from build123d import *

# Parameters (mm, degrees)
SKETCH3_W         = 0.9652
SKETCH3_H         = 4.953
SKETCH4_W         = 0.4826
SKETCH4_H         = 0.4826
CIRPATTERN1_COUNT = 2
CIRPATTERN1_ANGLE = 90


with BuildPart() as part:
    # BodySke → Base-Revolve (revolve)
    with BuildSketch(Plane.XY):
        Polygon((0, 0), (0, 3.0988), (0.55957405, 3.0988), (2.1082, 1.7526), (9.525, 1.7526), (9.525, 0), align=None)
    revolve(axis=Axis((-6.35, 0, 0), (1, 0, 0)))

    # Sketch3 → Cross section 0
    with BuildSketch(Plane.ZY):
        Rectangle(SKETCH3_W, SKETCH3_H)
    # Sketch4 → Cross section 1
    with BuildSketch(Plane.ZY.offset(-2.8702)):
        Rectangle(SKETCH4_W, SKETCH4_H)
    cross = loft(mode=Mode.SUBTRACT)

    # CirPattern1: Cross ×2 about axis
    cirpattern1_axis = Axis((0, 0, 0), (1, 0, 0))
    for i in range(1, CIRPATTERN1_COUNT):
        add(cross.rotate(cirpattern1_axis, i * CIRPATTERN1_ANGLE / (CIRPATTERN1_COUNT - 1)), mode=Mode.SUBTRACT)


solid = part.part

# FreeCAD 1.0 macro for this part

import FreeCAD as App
import Part
import Sketcher

V = App.Vector
Q = App.Units.Quantity

doc = App.newDocument("Part")
body = doc.addObject("PartDesign::Body", "Body")

sketch1 = body.newObject("Sketcher::SketchObject", "Sketch")
sketch1.AttachmentSupport = (doc.getObject("XY_Plane"), [""])
sketch1.MapMode = "FlatFace"
sketch1.addGeometry([
    Part.LineSegment(V(0, 3.1, 0), V(0, 0, 0)),
    Part.LineSegment(V(0, 0, 0), V(9.5, 0, 0)),
    Part.LineSegment(V(9.5, 0, 0), V(9.5, 1.8, 0)),
    Part.LineSegment(V(9.5, 1.8, 0), V(2.1, 1.8, 0)),
    Part.LineSegment(V(2.1, 1.8, 0), V(0.6, 3.1, 0)),
    Part.LineSegment(V(0.6, 3.1, 0), V(0, 3.1, 0)),
], False)
sketch1.addConstraint([
    Sketcher.Constraint("Coincident", 0, 2, 1, 1),
    Sketcher.Constraint("Coincident", 1, 2, 2, 1),
    Sketcher.Constraint("Coincident", 2, 2, 3, 1),
    Sketcher.Constraint("Coincident", 3, 2, 4, 1),
    Sketcher.Constraint("Coincident", 4, 2, 5, 1),
    Sketcher.Constraint("Coincident", 5, 2, 0, 1),
    Sketcher.Constraint("Vertical", 0),
    Sketcher.Constraint("Horizontal", 1),
    Sketcher.Constraint("Vertical", 2),
    Sketcher.Constraint("Horizontal", 3),
    Sketcher.Constraint("Horizontal", 5),
    Sketcher.Constraint("Coincident", 0, 2, -1, 1),
    Sketcher.Constraint("Angle", 4, Q("139 deg")),
    Sketcher.Constraint("DistanceX", 1, 1, 1, 2, Q("0.375 in")),
    Sketcher.Constraint("DistanceX", 3, 2, 3, 1, Q("0.292 in")),
    Sketcher.Constraint("DistanceY", 0, 2, 0, 1, Q("0.122 in")),
    Sketcher.Constraint("DistanceY", 2, 1, 2, 2, Q("0.069 in")),
])
revolution = body.newObject("PartDesign::Revolution", "Revolution")
revolution.Profile = sketch1
revolution.ReferenceAxis = (sketch1, ["H_Axis"])
revolution.Angle = 360

sketch2 = body.newObject("Sketcher::SketchObject", "Sketch001")
sketch2.AttachmentSupport = (doc.getObject("YZ_Plane"), [""])
sketch2.MapMode = "FlatFace"
sketch2.addGeometry([
    Part.LineSegment(V(2.5, -0.5, 0), V(-2.5, -0.5, 0)),
    Part.LineSegment(V(-2.5, -0.5, 0), V(-2.5, 0.5, 0)),
    Part.LineSegment(V(-2.5, 0.5, 0), V(2.5, 0.5, 0)),
    Part.LineSegment(V(2.5, 0.5, 0), V(2.5, -0.5, 0)),
], False)
sketch2.addConstraint([
    Sketcher.Constraint("Coincident", 0, 2, 1, 1),
    Sketcher.Constraint("Coincident", 1, 2, 2, 1),
    Sketcher.Constraint("Coincident", 2, 2, 3, 1),
    Sketcher.Constraint("Coincident", 3, 2, 0, 1),
    Sketcher.Constraint("Horizontal", 0),
    Sketcher.Constraint("Vertical", 1),
    Sketcher.Constraint("Horizontal", 2),
    Sketcher.Constraint("Vertical", 3),
    Sketcher.Constraint("Symmetric", 0, 2, 2, 2, -1, 1),
    Sketcher.Constraint("DistanceX", 0, 2, 0, 1, Q("0.195 in")),
    Sketcher.Constraint("DistanceY", 1, 1, 1, 2, Q("0.038 in")),
])

sketch3 = body.newObject("Sketcher::SketchObject", "Sketch002")
sketch3.AttachmentSupport = (doc.getObject("YZ_Plane"), [""])
sketch3.MapMode = "FlatFace"
sketch3.AttachmentOffset = App.Placement(V(0, 0, 0.113 * 25.4), App.Rotation())
sketch3.addGeometry([
    Part.LineSegment(V(0.24, -0.24, 0), V(-0.24, -0.24, 0)),
    Part.LineSegment(V(-0.24, -0.24, 0), V(-0.24, 0.24, 0)),
    Part.LineSegment(V(-0.24, 0.24, 0), V(0.24, 0.24, 0)),
    Part.LineSegment(V(0.24, 0.24, 0), V(0.24, -0.24, 0)),
], False)
sketch3.addConstraint([
    Sketcher.Constraint("Coincident", 0, 2, 1, 1),
    Sketcher.Constraint("Coincident", 1, 2, 2, 1),
    Sketcher.Constraint("Coincident", 2, 2, 3, 1),
    Sketcher.Constraint("Coincident", 3, 2, 0, 1),
    Sketcher.Constraint("Horizontal", 0),
    Sketcher.Constraint("Vertical", 1),
    Sketcher.Constraint("Horizontal", 2),
    Sketcher.Constraint("Vertical", 3),
    Sketcher.Constraint("Symmetric", 0, 2, 2, 2, -1, 1),
    Sketcher.Constraint("Equal", 2, 1),
    Sketcher.Constraint("DistanceX", 0, 2, 0, 1, Q("0.019 in")),
])

subtractiveloft = body.newObject("PartDesign::SubtractiveLoft", "SubtractiveLoft")
subtractiveloft.Profile = sketch2
subtractiveloft.Sections = [sketch3]
doc.recompute()

polarpattern = body.newObject("PartDesign::PolarPattern", "PolarPattern")
polarpattern.Originals = [subtractiveloft]
polarpattern.Axis = (doc.getObject("X_Axis"), [""])
polarpattern.Angle = 90
polarpattern.Occurrences = 2
body.Tip = polarpattern

doc.recompute()
